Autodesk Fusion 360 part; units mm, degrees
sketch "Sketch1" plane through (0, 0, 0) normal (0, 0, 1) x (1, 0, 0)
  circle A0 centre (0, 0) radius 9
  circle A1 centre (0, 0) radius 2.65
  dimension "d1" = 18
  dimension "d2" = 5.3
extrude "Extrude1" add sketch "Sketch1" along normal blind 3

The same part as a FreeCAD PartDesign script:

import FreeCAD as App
import Part
import Sketcher
from FreeCAD import Vector

doc = App.newDocument("Part")
body = doc.addObject("PartDesign::Body", "Body")

# Sketch on XY plane
sketch1 = doc.addObject("Sketcher::SketchObject", "Sketch")
body.addObject(sketch1)
sketch1.AttachmentSupport = (doc.XY_Plane, [""])
sketch1.MapMode = "FlatFace"
sketch1.addGeometry([
    Part.Circle(Vector(0, 0, 0), Vector(0, 0, 1), 9),
    Part.Circle(Vector(0, 0, 0), Vector(0, 0, 1), 2.6),
], False)
sketch1.addConstraint([
    Sketcher.Constraint("Coincident", 0, 3, -1, 1),
    Sketcher.Constraint("Coincident", 1, 3, -1, 1),
    Sketcher.Constraint("Diameter", 0, 18.0),
    Sketcher.Constraint("Diameter", 1, 5.3),
])
pad1 = doc.addObject("PartDesign::Pad", "Pad")
body.addObject(pad1)
pad1.Profile = sketch1
pad1.Length = 3

doc.recompute()
